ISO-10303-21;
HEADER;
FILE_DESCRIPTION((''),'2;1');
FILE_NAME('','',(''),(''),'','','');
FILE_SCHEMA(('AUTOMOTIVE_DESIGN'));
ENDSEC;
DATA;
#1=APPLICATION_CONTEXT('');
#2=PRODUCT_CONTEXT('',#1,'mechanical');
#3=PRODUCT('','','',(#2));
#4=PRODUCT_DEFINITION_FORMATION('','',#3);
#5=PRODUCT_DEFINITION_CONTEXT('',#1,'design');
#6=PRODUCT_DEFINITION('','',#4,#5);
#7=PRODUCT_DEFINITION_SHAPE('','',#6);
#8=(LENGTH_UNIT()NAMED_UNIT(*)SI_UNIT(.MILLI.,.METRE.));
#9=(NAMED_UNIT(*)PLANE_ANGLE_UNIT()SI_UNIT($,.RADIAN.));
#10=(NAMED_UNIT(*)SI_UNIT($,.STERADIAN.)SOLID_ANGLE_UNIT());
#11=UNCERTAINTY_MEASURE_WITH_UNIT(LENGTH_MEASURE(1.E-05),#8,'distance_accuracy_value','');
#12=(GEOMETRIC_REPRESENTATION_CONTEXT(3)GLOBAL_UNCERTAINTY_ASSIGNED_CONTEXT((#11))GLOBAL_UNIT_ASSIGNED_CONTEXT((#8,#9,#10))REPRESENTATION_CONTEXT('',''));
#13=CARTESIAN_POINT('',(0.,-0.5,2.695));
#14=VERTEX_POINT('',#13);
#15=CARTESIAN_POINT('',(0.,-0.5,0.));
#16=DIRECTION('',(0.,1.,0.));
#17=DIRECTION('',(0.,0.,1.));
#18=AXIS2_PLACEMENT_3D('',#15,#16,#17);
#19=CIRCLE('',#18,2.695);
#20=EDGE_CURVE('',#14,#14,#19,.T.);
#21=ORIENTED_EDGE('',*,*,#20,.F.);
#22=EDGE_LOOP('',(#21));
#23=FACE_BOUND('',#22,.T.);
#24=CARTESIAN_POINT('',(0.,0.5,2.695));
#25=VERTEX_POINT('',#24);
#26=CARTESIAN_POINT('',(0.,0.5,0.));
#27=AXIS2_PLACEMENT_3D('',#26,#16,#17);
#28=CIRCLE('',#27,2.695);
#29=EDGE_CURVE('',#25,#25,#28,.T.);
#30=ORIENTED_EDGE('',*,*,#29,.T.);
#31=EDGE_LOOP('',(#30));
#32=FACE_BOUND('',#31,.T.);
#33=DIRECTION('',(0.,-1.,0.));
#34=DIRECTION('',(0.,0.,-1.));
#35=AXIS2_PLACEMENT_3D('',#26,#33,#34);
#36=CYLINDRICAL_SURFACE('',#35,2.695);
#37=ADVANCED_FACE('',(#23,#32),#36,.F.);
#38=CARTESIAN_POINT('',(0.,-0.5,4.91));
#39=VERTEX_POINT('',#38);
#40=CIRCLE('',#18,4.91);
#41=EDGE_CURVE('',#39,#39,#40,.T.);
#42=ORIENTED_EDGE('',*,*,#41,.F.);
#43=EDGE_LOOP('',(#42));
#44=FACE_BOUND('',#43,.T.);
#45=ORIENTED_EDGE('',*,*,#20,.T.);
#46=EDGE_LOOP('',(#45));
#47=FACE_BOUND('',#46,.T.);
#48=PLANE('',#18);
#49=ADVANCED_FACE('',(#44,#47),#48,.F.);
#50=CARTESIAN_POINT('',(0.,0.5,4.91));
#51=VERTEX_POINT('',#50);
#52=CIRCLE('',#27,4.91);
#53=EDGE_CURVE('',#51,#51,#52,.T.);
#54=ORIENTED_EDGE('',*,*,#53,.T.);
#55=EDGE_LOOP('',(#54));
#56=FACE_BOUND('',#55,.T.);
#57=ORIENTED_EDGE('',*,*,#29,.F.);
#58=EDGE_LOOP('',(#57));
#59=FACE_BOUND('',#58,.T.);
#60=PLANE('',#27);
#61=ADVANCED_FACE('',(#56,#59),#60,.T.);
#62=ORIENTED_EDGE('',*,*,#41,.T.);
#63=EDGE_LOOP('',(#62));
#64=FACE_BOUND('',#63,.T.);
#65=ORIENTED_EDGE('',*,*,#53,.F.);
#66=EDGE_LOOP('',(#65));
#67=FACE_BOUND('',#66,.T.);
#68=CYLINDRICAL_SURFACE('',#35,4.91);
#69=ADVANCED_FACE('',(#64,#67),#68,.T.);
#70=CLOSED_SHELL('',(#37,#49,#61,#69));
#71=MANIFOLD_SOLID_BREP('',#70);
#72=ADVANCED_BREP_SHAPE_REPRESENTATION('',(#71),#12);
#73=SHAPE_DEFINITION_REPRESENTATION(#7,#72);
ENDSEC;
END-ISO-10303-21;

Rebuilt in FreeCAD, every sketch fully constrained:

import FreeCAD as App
import Part
import Sketcher
from FreeCAD import Vector
Q = App.Units.Quantity

doc = App.newDocument("Part")
body = doc.addObject("PartDesign::Body", "Body")

sketch1 = doc.addObject("Sketcher::SketchObject", "Sketch")
body.addObject(sketch1)
sketch1.AttachmentSupport = (doc.XZ_Plane, [""])
sketch1.MapMode = "FlatFace"
sketch1.addGeometry([
    Part.Circle(Vector(0, 0, 0), Vector(0, 0, 1), 4.9),
    Part.Circle(Vector(0, 0, 0), Vector(0, 0, 1), 2.7),
], False)
sketch1.addConstraint([
    Sketcher.Constraint("Coincident", 0, 3, -1, 1),
    Sketcher.Constraint("Coincident", 1, 3, -1, 1),
    Sketcher.Constraint("Diameter", 0, Q("9.82 mm")),
    Sketcher.Constraint("Diameter", 1, Q("5.39 mm")),
])
pad1 = doc.addObject("PartDesign::Pad", "Pad")
body.addObject(pad1)
pad1.Profile = sketch1
pad1.Length = 1
pad1.Midplane = True

doc.recompute()
